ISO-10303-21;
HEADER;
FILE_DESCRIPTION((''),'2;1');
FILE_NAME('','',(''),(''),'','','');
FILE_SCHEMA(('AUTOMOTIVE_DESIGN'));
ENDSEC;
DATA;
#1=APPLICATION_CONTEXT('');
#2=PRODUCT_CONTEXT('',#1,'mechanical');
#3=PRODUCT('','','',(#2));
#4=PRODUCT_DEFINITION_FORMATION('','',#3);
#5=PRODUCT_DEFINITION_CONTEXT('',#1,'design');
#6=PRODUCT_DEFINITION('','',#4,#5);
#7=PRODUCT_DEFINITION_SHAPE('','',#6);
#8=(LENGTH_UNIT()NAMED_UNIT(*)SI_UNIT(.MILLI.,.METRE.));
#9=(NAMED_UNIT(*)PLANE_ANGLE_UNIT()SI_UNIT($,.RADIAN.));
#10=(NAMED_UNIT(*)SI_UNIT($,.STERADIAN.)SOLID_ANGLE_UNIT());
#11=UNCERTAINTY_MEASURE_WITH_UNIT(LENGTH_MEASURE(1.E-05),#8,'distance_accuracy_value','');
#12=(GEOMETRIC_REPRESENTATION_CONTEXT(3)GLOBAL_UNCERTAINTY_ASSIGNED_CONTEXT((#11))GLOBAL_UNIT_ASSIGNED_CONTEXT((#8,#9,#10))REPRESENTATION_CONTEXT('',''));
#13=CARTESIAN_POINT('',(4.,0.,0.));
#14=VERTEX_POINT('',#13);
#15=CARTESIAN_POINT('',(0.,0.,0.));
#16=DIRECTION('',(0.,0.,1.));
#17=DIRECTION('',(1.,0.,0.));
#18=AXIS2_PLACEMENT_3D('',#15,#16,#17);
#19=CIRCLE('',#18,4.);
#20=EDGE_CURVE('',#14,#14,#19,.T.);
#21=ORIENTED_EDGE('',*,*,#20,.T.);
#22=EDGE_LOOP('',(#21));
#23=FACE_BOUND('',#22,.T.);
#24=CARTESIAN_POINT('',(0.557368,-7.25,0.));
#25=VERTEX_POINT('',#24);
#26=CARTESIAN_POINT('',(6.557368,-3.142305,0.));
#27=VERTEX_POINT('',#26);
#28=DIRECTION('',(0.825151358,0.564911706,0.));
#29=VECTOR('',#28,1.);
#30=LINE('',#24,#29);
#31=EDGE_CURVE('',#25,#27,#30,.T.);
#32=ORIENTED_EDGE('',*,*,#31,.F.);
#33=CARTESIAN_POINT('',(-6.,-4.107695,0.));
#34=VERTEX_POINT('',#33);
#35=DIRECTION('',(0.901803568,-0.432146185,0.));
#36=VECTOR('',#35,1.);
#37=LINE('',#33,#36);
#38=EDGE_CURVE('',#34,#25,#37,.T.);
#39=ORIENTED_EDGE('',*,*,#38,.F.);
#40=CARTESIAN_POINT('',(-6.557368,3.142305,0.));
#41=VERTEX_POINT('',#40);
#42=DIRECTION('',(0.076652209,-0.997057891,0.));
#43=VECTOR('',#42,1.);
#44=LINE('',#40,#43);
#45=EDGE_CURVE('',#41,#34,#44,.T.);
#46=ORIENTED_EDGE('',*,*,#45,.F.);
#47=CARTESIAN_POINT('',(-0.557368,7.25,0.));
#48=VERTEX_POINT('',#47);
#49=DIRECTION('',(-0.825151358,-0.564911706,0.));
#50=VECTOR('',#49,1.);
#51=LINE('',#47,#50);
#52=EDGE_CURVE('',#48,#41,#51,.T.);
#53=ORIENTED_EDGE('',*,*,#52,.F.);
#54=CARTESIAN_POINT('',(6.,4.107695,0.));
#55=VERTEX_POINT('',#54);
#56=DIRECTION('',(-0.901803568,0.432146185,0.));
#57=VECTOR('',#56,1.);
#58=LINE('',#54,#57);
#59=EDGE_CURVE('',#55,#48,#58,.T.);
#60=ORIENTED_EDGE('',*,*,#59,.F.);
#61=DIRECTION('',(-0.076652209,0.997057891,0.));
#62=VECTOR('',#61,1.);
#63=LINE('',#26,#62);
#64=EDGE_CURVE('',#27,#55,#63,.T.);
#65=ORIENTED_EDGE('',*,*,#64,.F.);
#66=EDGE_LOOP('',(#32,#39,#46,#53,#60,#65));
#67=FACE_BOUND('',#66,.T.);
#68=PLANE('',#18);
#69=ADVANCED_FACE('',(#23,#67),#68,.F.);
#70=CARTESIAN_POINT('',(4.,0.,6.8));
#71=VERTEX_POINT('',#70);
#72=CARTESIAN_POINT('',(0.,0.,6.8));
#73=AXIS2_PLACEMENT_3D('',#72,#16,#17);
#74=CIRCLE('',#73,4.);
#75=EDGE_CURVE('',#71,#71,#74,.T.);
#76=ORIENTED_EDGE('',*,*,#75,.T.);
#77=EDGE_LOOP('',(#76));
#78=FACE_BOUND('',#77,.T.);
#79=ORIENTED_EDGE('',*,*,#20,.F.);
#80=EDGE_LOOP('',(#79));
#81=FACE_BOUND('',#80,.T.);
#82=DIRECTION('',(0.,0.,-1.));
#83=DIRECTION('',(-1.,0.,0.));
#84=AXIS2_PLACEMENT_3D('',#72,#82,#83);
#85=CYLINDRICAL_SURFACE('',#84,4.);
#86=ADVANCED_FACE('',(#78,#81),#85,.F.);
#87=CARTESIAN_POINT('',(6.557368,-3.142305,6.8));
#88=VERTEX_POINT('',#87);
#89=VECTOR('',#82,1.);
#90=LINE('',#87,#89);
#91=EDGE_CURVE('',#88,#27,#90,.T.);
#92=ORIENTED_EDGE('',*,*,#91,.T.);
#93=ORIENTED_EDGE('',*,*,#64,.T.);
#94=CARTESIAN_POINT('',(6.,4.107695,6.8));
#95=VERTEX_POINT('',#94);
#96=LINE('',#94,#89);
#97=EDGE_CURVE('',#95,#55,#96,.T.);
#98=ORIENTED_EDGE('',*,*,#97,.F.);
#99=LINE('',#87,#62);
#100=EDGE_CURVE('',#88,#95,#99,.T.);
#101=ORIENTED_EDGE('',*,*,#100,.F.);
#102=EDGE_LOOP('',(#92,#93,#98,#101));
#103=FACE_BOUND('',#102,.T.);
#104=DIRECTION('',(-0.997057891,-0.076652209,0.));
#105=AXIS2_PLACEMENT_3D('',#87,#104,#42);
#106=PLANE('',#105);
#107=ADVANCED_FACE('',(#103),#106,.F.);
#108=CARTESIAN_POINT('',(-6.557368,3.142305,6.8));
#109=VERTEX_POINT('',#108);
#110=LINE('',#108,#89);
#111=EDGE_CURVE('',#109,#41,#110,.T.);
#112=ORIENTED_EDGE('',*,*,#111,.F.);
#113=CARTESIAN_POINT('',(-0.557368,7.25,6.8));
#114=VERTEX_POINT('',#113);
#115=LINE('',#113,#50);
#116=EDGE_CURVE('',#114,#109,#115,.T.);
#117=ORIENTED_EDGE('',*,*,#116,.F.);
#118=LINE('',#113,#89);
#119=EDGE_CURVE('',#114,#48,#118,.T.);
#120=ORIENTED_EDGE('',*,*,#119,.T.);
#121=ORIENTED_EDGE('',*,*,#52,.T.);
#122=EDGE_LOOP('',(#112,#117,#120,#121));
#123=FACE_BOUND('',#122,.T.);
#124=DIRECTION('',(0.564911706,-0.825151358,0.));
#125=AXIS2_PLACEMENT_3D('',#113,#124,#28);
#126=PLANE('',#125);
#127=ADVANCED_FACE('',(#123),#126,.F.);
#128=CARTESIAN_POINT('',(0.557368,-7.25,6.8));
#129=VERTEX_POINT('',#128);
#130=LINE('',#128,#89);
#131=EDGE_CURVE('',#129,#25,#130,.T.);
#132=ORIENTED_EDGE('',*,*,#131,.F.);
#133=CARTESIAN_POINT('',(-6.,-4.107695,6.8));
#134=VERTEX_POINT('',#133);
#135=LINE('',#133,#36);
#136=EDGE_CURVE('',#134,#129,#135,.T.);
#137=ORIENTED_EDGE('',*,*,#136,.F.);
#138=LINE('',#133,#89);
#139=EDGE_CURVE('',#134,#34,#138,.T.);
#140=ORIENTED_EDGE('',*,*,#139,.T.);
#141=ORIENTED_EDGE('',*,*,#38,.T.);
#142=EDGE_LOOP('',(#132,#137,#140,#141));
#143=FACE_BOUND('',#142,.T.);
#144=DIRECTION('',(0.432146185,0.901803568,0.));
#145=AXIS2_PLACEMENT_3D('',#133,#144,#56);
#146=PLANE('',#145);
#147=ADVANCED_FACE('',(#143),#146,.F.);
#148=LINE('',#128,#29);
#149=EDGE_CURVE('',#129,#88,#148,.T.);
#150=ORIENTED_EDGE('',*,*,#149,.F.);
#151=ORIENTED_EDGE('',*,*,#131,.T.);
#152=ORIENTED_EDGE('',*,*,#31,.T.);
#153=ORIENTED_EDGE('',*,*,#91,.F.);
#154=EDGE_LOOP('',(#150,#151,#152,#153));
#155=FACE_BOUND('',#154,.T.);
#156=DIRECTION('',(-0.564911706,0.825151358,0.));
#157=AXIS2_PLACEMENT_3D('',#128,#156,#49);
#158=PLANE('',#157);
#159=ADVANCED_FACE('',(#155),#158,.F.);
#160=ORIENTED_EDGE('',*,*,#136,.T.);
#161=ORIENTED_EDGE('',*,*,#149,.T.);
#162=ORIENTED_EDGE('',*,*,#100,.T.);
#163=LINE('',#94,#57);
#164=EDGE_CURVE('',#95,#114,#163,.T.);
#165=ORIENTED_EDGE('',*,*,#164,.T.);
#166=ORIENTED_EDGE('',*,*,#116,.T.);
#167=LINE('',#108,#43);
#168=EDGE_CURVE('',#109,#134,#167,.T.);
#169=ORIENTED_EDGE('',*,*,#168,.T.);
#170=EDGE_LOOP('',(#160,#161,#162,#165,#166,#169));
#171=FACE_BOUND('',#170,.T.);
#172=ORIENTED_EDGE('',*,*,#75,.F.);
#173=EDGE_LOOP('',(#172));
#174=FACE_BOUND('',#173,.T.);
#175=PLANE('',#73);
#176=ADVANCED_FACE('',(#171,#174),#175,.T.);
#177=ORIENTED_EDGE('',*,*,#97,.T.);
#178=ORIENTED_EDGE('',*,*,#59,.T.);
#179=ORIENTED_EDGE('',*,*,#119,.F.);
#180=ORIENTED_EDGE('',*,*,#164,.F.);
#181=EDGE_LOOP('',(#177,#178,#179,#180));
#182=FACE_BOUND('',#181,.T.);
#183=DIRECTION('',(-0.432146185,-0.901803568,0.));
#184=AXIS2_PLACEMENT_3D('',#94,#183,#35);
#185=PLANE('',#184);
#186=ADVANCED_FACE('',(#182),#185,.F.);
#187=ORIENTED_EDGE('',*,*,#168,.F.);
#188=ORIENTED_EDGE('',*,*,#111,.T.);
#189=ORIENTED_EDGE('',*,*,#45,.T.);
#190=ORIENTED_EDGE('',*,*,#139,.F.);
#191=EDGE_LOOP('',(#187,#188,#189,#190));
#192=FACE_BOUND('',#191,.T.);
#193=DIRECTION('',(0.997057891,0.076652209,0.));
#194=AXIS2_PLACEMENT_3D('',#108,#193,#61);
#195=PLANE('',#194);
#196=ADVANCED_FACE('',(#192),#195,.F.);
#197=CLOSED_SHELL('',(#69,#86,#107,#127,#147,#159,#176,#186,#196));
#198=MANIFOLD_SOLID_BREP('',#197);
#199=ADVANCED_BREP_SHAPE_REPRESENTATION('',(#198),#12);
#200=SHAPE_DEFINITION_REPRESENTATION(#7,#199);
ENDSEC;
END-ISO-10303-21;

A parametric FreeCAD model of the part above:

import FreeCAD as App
import Part
import Sketcher

V = App.Vector

doc = App.newDocument("Part")
body = doc.addObject("PartDesign::Body", "Body")

sketch1 = body.newObject("Sketcher::SketchObject", "Sketch")
sketch1.AttachmentSupport = (doc.getObject("XY_Plane"), [""])
sketch1.MapMode = "FlatFace"
sketch1.addGeometry([
    Part.LineSegment(V(-0.557368, 7.25, 0), V(-6.557368, 3.142305, 0)),
    Part.LineSegment(V(-6.557368, 3.142305, 0), V(-6, -4.107695, 0)),
    Part.LineSegment(V(-6, -4.107695, 0), V(0.557368, -7.25, 0)),
    Part.LineSegment(V(0.557368, -7.25, 0), V(6.557368, -3.142305, 0)),
    Part.LineSegment(V(6.557368, -3.142305, 0), V(6, 4.107695, 0)),
    Part.LineSegment(V(6, 4.107695, 0), V(-0.557368, 7.25, 0)),
    Part.Circle(V(0, 0, 0), V(0, 0, 1), 4),
], False)
sketch1.addConstraint([
    Sketcher.Constraint("Coincident", 0, 2, 1, 1),
    Sketcher.Constraint("Coincident", 1, 2, 2, 1),
    Sketcher.Constraint("Coincident", 2, 2, 3, 1),
    Sketcher.Constraint("Coincident", 3, 2, 4, 1),
    Sketcher.Constraint("Coincident", 4, 2, 5, 1),
    Sketcher.Constraint("Coincident", 5, 2, 0, 1),
    Sketcher.Constraint("Coincident", 6, 3, -1, 1),
    Sketcher.Constraint("Symmetric", 0, 2, 3, 2, -1, 1),
    Sketcher.Constraint("Symmetric", 1, 2, 4, 2, -1, 1),
    Sketcher.Constraint("Symmetric", 2, 2, 5, 2, -1, 1),
    Sketcher.Constraint("Equal", 0, 1),
    Sketcher.Constraint("Equal", 1, 2),
    Sketcher.Constraint("Diameter", 6, 8.0),
    Sketcher.Constraint("DistanceX", 1, 2, -1, 1, 6.0),
    Sketcher.Constraint("DistanceX", 2, 2, 3, 2, 6.0),
    Sketcher.Constraint("DistanceY", 2, 2, -1, 1, 7.25),
    Sketcher.Constraint("DistanceY", 1, 2, 0, 2, 7.25),
])
pad1 = body.newObject("PartDesign::Pad", "Pad")
pad1.Profile = sketch1
pad1.Length = 6.8

doc.recompute()
